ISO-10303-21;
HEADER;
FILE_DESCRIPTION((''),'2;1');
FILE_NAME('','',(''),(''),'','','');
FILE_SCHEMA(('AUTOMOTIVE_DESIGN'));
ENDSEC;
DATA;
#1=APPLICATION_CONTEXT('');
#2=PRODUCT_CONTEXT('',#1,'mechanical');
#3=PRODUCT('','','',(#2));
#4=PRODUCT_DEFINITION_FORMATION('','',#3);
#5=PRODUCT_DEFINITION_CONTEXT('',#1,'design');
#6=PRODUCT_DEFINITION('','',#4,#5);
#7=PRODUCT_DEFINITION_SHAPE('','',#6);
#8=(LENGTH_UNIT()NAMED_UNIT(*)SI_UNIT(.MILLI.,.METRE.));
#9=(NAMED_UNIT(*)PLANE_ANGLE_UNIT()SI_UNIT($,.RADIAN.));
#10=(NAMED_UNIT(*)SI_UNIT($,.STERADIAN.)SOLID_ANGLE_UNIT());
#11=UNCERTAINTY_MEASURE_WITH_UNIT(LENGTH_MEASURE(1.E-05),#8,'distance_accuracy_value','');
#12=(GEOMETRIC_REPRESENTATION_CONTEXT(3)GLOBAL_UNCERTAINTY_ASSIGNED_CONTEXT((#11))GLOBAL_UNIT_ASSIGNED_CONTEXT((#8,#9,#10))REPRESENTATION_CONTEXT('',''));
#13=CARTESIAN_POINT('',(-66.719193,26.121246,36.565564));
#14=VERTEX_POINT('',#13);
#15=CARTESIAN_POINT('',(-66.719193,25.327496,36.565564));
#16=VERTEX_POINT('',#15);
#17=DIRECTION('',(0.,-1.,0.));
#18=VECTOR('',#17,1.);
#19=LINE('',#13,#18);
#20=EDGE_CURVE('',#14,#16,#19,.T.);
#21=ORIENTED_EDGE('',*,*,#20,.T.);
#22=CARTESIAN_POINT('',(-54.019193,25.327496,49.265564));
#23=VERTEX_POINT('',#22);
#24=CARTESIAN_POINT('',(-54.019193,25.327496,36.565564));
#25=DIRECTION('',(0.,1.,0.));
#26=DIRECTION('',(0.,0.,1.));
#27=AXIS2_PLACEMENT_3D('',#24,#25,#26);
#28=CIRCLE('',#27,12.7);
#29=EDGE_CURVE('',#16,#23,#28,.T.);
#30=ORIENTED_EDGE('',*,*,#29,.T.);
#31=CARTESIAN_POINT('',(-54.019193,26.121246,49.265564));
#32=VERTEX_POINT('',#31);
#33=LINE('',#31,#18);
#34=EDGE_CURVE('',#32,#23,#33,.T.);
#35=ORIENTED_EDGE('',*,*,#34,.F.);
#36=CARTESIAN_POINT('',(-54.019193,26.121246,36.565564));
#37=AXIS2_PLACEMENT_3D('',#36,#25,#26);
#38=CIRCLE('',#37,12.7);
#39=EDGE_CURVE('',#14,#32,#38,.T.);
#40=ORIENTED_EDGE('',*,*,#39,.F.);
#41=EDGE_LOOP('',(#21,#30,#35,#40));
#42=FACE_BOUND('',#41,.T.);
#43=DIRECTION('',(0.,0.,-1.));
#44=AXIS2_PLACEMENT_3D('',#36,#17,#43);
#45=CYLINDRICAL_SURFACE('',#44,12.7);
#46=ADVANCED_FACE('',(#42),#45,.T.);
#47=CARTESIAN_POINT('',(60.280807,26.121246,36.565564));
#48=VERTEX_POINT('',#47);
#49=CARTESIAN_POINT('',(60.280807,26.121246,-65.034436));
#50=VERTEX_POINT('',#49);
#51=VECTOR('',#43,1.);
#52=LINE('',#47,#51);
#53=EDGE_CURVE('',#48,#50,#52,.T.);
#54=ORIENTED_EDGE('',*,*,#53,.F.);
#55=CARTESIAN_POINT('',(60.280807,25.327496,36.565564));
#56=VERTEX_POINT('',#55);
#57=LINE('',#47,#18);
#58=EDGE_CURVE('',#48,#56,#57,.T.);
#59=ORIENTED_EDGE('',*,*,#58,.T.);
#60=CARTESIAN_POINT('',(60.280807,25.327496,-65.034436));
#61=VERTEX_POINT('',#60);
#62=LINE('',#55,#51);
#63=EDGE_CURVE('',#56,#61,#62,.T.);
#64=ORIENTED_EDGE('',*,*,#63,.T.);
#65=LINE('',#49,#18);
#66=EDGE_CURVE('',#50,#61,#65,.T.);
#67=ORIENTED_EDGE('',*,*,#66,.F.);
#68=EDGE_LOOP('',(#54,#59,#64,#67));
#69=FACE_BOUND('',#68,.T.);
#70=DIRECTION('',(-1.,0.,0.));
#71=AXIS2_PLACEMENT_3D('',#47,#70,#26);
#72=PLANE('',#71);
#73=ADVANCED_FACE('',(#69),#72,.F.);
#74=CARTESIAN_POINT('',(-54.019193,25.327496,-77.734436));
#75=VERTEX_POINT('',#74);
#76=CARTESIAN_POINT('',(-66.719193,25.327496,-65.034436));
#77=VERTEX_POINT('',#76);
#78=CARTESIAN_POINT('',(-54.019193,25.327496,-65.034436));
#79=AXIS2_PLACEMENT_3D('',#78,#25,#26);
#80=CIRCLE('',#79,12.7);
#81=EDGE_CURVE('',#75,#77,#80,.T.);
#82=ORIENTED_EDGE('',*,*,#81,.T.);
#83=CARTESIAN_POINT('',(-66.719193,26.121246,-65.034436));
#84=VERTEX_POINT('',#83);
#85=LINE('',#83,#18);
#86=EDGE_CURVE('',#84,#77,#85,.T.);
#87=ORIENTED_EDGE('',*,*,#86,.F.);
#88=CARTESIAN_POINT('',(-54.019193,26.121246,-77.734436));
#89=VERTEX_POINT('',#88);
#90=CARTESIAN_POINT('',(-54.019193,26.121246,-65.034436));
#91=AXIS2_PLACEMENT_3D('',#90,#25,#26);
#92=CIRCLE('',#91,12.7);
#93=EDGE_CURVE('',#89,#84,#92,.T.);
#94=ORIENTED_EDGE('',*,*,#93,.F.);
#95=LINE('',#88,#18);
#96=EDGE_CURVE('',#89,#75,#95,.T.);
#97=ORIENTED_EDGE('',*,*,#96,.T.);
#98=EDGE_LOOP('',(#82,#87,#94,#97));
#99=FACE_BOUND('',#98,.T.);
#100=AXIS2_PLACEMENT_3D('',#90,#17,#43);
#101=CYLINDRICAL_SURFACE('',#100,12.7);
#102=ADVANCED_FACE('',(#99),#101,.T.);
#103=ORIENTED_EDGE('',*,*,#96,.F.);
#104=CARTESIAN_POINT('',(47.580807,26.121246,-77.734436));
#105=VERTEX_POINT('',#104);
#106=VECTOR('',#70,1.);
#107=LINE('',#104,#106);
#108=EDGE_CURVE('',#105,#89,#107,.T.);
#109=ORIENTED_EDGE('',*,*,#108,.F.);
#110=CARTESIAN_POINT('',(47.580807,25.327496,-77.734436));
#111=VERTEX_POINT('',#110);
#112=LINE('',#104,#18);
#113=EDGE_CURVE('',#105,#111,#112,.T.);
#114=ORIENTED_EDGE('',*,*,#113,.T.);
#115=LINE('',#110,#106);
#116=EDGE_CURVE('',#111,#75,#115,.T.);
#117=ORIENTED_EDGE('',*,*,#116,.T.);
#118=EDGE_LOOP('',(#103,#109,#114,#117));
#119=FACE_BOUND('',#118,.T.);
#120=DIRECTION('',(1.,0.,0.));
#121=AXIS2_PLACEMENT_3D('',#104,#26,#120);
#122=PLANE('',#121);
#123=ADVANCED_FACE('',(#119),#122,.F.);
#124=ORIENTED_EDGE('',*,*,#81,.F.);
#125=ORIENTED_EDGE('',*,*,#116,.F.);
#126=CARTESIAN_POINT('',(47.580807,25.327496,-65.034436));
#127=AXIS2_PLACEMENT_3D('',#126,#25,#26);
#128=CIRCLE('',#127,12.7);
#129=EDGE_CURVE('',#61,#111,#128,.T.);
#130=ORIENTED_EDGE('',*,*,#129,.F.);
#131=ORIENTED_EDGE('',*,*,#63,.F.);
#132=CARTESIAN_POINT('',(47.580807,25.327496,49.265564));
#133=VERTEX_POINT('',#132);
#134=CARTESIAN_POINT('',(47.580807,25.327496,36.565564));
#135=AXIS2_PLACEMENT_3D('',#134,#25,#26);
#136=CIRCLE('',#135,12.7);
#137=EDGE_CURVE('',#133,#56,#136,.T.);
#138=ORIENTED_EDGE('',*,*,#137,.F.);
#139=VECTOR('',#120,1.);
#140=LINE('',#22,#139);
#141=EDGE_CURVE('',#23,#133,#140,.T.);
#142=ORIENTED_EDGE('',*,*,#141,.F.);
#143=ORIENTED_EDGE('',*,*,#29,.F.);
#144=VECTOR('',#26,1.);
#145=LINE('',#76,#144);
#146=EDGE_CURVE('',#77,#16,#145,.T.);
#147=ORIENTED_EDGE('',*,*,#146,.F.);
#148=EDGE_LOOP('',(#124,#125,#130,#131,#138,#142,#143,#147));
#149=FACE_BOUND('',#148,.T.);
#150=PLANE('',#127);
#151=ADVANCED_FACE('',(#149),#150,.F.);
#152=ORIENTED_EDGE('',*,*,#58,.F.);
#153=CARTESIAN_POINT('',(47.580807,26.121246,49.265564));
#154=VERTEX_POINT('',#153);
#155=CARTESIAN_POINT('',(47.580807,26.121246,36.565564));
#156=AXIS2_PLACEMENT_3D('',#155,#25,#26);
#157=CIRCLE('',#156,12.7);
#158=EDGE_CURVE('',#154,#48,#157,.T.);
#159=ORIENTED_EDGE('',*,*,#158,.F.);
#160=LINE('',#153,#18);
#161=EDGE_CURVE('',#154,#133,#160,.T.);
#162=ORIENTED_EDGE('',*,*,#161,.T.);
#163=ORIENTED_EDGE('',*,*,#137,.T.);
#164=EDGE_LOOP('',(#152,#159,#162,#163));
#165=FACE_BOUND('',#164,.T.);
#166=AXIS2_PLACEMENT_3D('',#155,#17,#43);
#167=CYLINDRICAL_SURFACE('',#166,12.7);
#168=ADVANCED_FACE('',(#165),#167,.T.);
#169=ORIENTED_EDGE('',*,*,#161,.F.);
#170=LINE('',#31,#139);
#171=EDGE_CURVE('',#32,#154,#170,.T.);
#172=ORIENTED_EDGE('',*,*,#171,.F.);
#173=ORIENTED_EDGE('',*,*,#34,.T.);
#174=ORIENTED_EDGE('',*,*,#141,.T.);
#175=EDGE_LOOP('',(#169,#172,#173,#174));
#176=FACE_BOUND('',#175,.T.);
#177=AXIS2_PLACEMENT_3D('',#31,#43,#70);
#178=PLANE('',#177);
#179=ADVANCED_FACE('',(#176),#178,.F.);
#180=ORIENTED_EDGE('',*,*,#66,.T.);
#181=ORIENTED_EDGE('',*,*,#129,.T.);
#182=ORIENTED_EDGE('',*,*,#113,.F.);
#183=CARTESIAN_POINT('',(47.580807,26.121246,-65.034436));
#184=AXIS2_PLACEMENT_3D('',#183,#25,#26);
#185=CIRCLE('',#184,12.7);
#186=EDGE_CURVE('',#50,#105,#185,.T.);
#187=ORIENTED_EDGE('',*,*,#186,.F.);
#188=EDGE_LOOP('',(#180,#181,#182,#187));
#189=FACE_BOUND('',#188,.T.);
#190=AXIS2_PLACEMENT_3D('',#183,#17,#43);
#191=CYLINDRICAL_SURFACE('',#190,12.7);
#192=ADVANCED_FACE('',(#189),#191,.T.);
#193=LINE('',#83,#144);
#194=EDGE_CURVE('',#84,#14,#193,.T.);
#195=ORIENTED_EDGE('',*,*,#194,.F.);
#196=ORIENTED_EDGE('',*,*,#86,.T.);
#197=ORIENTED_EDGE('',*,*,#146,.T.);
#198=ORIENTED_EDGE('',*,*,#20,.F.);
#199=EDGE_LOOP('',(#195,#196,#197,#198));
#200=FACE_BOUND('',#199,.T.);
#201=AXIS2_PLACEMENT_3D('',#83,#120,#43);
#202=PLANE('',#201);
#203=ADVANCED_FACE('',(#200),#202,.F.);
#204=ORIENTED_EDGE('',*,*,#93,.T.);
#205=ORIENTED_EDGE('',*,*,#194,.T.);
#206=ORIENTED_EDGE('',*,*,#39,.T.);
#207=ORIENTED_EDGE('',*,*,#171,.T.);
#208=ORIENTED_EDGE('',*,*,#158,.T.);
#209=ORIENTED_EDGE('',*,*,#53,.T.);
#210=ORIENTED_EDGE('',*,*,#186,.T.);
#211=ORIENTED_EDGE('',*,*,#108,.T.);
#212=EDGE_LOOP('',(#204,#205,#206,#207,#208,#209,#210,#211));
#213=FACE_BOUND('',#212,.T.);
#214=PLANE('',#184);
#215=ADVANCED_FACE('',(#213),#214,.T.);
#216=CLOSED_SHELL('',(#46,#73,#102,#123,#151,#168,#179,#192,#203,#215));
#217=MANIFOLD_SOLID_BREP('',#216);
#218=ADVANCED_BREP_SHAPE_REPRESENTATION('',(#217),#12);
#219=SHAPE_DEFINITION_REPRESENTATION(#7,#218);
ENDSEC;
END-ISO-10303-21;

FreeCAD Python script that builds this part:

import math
import FreeCAD as App
import Part
import Sketcher
from FreeCAD import Vector
Q = App.Units.Quantity

doc = App.newDocument("Part")
body = doc.addObject("PartDesign::Body", "Body")

# Sketch on XZ plane
sketch1 = doc.addObject("Sketcher::SketchObject", "Sketch")
body.addObject(sketch1)
sketch1.AttachmentSupport = (doc.XZ_Plane, [""])
sketch1.MapMode = "FlatFace"
sketch1.AttachmentOffset = App.Placement(Vector(0, 0, -25.327496), App.Rotation())
sketch1.addGeometry(Part.LineSegment(Vector(60, 37, 0), Vector(60, -65, 0)), False)
sketch1.addGeometry(Part.ArcOfCircle(Part.Circle(Vector(48, -65, 0), Vector(0, 0, 1), 13), math.radians(-90), math.radians(0)), False)
sketch1.addGeometry(Part.LineSegment(Vector(48, -78, 0), Vector(-54, -78, 0)), False)
sketch1.addGeometry(Part.ArcOfCircle(Part.Circle(Vector(-54, -65, 0), Vector(0, 0, 1), 13), math.radians(180), math.radians(270)), False)
sketch1.addGeometry(Part.LineSegment(Vector(-67, -65, 0), Vector(-67, 37, 0)), False)
sketch1.addGeometry(Part.ArcOfCircle(Part.Circle(Vector(-54, 37, 0), Vector(0, 0, 1), 13), math.radians(90), math.radians(180)), False)
sketch1.addGeometry(Part.LineSegment(Vector(-54, 49, 0), Vector(48, 49, 0)), False)
sketch1.addGeometry(Part.ArcOfCircle(Part.Circle(Vector(48, 37, 0), Vector(0, 0, 1), 13), math.radians(0), math.radians(90)), False)
sketch1.addConstraint(Sketcher.Constraint("Tangent", 0, 2, 1, 2))
sketch1.addConstraint(Sketcher.Constraint("Tangent", 1, 1, 2, 1))
sketch1.addConstraint(Sketcher.Constraint("Tangent", 2, 2, 3, 2))
sketch1.addConstraint(Sketcher.Constraint("Tangent", 3, 1, 4, 1))
sketch1.addConstraint(Sketcher.Constraint("Tangent", 4, 2, 5, 2))
sketch1.addConstraint(Sketcher.Constraint("Tangent", 5, 1, 6, 1))
sketch1.addConstraint(Sketcher.Constraint("Tangent", 6, 2, 7, 2))
sketch1.addConstraint(Sketcher.Constraint("Tangent", 7, 1, 0, 1))
sketch1.addConstraint(Sketcher.Constraint("Vertical", 0))
sketch1.addConstraint(Sketcher.Constraint("Horizontal", 2))
sketch1.addConstraint(Sketcher.Constraint("Vertical", 4))
sketch1.addConstraint(Sketcher.Constraint("Horizontal", 6))
sketch1.addConstraint(Sketcher.Constraint("Equal", 1, 3))
sketch1.addConstraint(Sketcher.Constraint("Equal", 3, 5))
sketch1.addConstraint(Sketcher.Constraint("Equal", 5, 7))
sketch1.addConstraint(Sketcher.Constraint("Equal", 6, 0))
sketch1.addConstraint(Sketcher.Constraint("Radius", 1, Q("0.5 in")))
sketch1.addConstraint(Sketcher.Constraint("DistanceX", 2, 2, 2, 1, Q("4 in")))
sketch1.addConstraint(Sketcher.Constraint("DistanceX", -1, 1, 1, 3, Q("47.580807 mm")))
sketch1.addConstraint(Sketcher.Constraint("DistanceY", 1, 3, -1, 1, Q("65.034436 mm")))
pad1 = doc.addObject("PartDesign::Pad", "Pad")
body.addObject(pad1)
pad1.Profile = sketch1
pad1.Length = Q("0.03125 in")
pad1.Reversed = True

doc.recompute()
